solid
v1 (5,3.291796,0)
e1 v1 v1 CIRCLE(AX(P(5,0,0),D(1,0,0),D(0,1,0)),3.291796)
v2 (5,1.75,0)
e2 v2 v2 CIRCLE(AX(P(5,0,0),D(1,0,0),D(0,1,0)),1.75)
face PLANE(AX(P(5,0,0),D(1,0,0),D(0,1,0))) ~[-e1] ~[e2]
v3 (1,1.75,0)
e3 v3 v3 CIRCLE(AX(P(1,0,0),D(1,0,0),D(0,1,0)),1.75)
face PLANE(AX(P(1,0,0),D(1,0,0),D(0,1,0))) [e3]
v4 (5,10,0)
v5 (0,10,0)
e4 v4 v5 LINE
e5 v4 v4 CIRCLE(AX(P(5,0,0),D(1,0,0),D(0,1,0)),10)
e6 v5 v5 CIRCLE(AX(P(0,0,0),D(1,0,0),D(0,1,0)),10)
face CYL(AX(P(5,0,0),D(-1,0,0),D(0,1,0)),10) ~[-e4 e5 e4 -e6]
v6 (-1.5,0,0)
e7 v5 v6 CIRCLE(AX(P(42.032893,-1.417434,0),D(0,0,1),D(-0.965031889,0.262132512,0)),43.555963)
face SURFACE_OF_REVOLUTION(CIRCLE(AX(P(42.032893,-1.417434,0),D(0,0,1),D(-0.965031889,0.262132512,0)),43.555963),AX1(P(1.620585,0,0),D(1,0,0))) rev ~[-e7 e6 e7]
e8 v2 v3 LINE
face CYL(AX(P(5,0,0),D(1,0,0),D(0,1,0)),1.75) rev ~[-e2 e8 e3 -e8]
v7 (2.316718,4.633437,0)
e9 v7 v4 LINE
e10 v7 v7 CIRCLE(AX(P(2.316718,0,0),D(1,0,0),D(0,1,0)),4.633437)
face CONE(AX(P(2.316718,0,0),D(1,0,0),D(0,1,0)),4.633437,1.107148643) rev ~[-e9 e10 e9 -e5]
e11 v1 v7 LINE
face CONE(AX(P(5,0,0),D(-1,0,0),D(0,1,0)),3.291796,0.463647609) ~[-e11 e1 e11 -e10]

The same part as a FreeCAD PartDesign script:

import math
import FreeCAD as App
import Part
import Sketcher

V = App.Vector
Q = App.Units.Quantity

doc = App.newDocument("Part")
body = doc.addObject("PartDesign::Body", "Body")

# Sketch on XY plane
sketch1 = body.newObject("Sketcher::SketchObject", "Sketch")
sketch1.AttachmentSupport = (doc.getObject("XY_Plane"), [""])
sketch1.MapMode = "FlatFace"
sketch1.addGeometry([
    Part.LineSegment(V(5, 10, 0), V(0, 10, 0)),  # 0
    Part.ArcOfCircle(Part.Circle(V(42, -1.4, 0), V(0, 0, 1), 43.6), math.radians(164.8), math.radians(178.14)),  # 1
    Part.LineSegment(V(-1.5, 0, 0), V(5, 0, 0)),  # 2
    Part.LineSegment(V(5, 0, 0), V(5, 3.3, 0)),  # 3
    Part.LineSegment(V(5, 3.3, 0), V(2.3, 4.6, 0)),  # 4
    Part.LineSegment(V(2.3, 4.6, 0), V(5, 10, 0)),  # 5
], False)
sketch1.addConstraint([
    Sketcher.Constraint("Coincident", 0, 2, 1, 1),
    Sketcher.Constraint("Coincident", 1, 2, 2, 1),
    Sketcher.Constraint("Coincident", 2, 2, 3, 1),
    Sketcher.Constraint("Coincident", 3, 2, 4, 1),
    Sketcher.Constraint("Coincident", 4, 2, 5, 1),
    Sketcher.Constraint("Coincident", 5, 2, 0, 1),
    Sketcher.Constraint("Horizontal", 0),
    Sketcher.Constraint("Horizontal", 2),
    Sketcher.Constraint("Vertical", 3),
    Sketcher.Constraint("PointOnObject", 0, 2, -2),
    Sketcher.Constraint("PointOnObject", 1, 2, -1),
    Sketcher.Constraint("Perpendicular", 4, 5),
    Sketcher.Constraint("Vertical", 3, 2, 5, 2),
    Sketcher.Constraint("DistanceX", 0, 2, 0, 1, Q("5 mm")),
    Sketcher.Constraint("Distance", 4, Q("3 mm")),
    Sketcher.Constraint("Distance", 5, Q("6 mm")),
    Sketcher.Constraint("DistanceX", 2, 1, 2, 2, Q("6.5 mm")),
    Sketcher.Constraint("DistanceY", -1, 1, 0, 2, Q("10 mm")),
    Sketcher.Constraint("Radius", 1, Q("43.555963 mm")),
])
revolution = body.newObject("PartDesign::Revolution", "Revolution")
revolution.Profile = sketch1
revolution.ReferenceAxis = (sketch1, ["H_Axis"])
revolution.Angle = 360

# Sketch on YZ plane
sketch2 = body.newObject("Sketcher::SketchObject", "Sketch001")
sketch2.AttachmentSupport = (doc.getObject("YZ_Plane"), [""])
sketch2.MapMode = "FlatFace"
sketch2.AttachmentOffset = App.Placement(V(0, 0, 5), App.Rotation())
sketch2.addGeometry(Part.Circle(V(0, 0, 0), V(0, 0, 1), 1.8), False)
sketch2.addConstraint([
    Sketcher.Constraint("Coincident", 0, 3, -1, 1),
    Sketcher.Constraint("Diameter", 0, Q("3.5 mm")),
])
pocket1 = body.newObject("PartDesign::Pocket", "Pocket")
pocket1.Profile = sketch2
pocket1.Length = 4

doc.recompute()
